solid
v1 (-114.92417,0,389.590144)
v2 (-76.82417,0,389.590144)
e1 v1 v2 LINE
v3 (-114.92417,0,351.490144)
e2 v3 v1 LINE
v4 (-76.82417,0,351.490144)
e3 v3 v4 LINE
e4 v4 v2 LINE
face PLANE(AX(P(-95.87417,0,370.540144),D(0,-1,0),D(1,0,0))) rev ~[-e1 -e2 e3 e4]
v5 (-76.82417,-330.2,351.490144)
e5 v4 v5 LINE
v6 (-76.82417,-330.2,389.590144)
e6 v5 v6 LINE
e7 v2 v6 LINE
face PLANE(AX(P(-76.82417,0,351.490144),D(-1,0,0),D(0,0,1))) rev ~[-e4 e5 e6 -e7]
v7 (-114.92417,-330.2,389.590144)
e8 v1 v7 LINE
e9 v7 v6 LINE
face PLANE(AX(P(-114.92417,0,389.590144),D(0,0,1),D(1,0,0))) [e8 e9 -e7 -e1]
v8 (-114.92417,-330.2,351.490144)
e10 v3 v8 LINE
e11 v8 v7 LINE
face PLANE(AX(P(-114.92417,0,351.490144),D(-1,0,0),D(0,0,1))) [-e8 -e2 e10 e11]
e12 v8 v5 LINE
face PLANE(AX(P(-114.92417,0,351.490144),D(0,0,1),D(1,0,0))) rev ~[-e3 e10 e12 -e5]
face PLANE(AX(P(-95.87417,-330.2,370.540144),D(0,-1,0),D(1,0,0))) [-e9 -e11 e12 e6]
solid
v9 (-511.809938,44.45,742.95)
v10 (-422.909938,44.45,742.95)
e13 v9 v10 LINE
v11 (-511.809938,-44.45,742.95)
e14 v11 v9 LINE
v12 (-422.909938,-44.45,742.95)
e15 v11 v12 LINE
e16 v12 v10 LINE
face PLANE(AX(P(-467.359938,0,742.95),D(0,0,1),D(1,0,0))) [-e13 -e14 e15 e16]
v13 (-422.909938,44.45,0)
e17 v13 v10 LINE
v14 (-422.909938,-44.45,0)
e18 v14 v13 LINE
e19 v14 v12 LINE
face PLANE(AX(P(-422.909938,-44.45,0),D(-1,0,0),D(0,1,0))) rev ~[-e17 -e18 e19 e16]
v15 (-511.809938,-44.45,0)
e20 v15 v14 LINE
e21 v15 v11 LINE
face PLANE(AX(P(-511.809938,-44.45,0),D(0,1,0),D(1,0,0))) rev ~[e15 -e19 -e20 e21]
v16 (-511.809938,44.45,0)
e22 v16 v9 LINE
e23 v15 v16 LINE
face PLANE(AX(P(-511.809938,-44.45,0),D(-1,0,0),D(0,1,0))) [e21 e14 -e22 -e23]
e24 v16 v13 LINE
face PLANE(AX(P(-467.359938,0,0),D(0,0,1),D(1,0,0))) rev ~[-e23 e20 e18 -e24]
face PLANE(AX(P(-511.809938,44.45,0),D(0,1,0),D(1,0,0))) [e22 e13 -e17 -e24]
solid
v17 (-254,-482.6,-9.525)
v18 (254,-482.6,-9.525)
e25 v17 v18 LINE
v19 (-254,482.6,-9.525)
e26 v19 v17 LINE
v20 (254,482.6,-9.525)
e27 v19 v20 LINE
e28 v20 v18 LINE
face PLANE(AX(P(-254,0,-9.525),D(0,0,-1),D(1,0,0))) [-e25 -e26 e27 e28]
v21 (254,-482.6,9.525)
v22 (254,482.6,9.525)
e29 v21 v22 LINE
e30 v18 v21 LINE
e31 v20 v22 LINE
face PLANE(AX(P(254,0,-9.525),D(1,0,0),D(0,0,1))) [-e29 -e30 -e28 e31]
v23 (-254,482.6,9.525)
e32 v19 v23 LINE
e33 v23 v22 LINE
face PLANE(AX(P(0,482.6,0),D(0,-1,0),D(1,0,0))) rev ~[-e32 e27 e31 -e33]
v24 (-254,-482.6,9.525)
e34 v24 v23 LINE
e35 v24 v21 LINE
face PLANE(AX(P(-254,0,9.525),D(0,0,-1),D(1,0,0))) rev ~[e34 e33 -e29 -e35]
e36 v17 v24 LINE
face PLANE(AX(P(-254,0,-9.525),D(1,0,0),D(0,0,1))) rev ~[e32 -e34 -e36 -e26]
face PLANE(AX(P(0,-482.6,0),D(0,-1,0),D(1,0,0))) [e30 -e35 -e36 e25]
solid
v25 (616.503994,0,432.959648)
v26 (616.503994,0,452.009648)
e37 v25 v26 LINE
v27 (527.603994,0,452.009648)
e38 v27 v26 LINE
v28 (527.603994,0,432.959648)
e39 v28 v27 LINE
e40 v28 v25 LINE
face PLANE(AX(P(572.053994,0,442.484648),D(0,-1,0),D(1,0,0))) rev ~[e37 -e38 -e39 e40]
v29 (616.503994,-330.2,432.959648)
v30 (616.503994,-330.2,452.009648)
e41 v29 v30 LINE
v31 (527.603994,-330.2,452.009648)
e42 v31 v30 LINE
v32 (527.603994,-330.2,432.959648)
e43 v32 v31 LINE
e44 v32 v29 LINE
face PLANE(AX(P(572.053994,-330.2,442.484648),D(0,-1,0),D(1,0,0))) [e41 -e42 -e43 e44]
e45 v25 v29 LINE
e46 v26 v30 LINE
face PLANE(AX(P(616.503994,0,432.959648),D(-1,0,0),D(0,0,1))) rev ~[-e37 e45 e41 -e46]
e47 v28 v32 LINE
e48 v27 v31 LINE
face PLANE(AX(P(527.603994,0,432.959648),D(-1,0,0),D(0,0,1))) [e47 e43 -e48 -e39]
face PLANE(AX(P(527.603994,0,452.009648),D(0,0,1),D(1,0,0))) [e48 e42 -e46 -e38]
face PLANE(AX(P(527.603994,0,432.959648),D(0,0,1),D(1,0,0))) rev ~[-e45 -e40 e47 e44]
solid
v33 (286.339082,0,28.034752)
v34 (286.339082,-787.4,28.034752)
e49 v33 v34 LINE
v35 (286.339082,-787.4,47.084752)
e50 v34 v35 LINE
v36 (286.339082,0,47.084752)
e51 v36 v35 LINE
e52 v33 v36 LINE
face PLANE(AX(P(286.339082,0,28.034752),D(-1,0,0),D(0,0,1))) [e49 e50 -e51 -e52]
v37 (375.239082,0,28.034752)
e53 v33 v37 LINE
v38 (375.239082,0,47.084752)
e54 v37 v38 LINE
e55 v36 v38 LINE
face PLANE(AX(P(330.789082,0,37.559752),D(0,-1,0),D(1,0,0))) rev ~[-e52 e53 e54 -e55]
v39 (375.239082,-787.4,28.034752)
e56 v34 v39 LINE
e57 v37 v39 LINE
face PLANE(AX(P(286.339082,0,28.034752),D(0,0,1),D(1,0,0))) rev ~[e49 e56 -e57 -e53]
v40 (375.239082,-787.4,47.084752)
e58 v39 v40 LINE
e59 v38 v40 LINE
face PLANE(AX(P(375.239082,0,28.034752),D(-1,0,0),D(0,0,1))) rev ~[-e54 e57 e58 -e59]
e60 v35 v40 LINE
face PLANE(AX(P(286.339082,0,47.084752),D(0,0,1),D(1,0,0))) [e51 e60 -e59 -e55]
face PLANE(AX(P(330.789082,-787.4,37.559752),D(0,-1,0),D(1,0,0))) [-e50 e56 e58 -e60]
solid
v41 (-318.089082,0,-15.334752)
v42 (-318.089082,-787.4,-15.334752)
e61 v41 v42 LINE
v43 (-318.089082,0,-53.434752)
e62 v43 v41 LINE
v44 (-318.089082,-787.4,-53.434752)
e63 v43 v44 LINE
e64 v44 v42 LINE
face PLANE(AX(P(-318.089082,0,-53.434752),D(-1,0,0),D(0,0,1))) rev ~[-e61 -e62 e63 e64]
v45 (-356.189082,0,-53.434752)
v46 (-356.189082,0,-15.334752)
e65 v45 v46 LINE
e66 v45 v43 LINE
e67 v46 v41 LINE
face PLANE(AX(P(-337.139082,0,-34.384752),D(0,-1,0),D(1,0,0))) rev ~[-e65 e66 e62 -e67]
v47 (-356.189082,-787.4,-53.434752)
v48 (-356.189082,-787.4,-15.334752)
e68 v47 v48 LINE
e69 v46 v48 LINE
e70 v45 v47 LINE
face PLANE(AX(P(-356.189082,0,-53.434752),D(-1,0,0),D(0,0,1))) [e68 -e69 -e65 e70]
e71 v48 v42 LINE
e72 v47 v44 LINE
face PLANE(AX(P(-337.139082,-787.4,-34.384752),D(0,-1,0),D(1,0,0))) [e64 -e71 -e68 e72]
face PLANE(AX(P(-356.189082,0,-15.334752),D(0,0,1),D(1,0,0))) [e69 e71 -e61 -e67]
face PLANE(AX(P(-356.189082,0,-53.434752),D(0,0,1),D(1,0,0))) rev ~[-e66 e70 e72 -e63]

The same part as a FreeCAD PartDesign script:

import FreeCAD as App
import Part
import Sketcher

V = App.Vector
Q = App.Units.Quantity

doc = App.newDocument("Part")
body = doc.addObject("PartDesign::Body", "Body")

# Sketch on XZ plane
sketch1 = body.newObject("Sketcher::SketchObject", "Sketch")
sketch1.AttachmentSupport = (doc.getObject("XZ_Plane"), [""])
sketch1.MapMode = "FlatFace"
sketch1.addGeometry(Part.LineSegment(V(-254, 9.525, 0), V(-254, -9.525, 0)), False)
sketch1.addGeometry(Part.LineSegment(V(-254, -9.525, 0), V(254, -9.525, 0)), False)
sketch1.addGeometry(Part.LineSegment(V(254, -9.525, 0), V(254, 9.525, 0)), False)
sketch1.addGeometry(Part.LineSegment(V(254, 9.525, 0), V(-254, 9.525, 0)), False)
sketch1.addConstraint(Sketcher.Constraint("Coincident", 0, 2, 1, 1))
sketch1.addConstraint(Sketcher.Constraint("Coincident", 1, 2, 2, 1))
sketch1.addConstraint(Sketcher.Constraint("Coincident", 2, 2, 3, 1))
sketch1.addConstraint(Sketcher.Constraint("Coincident", 3, 2, 0, 1))
sketch1.addConstraint(Sketcher.Constraint("Vertical", 0))
sketch1.addConstraint(Sketcher.Constraint("Horizontal", 1))
sketch1.addConstraint(Sketcher.Constraint("Vertical", 2))
sketch1.addConstraint(Sketcher.Constraint("Horizontal", 3))
sketch1.addConstraint(Sketcher.Constraint("Symmetric", 0, 2, 2, 2, -1, 1))
sketch1.addConstraint(Sketcher.Constraint("DistanceX", 1, 1, 1, 2, Q("20 in")))
sketch1.addConstraint(Sketcher.Constraint("DistanceY", 0, 2, 0, 1, Q("0.75 in")))
pad1 = body.newObject("PartDesign::Pad", "Pad")
pad1.Profile = sketch1
pad1.Type = "TwoLengths"
pad1.Length = Q("19 in")
pad1.Length2 = Q("19 in")
body2 = doc.addObject("PartDesign::Body", "Body001")

# Sketch on XY plane
sketch2 = body2.newObject("Sketcher::SketchObject", "Sketch001")
sketch2.AttachmentSupport = (doc.getObject("XY_Plane001"), [""])
sketch2.MapMode = "FlatFace"
sketch2.addGeometry(Part.LineSegment(V(-511.809938, 44.45, 0), V(-511.809938, -44.45, 0)), False)
sketch2.addGeometry(Part.LineSegment(V(-511.809938, -44.45, 0), V(-422.909938, -44.45, 0)), False)
sketch2.addGeometry(Part.LineSegment(V(-422.909938, -44.45, 0), V(-422.909938, 44.45, 0)), False)
sketch2.addGeometry(Part.LineSegment(V(-422.909938, 44.45, 0), V(-511.809938, 44.45, 0)), False)
sketch2.addConstraint(Sketcher.Constraint("Coincident", 0, 2, 1, 1))
sketch2.addConstraint(Sketcher.Constraint("Coincident", 1, 2, 2, 1))
sketch2.addConstraint(Sketcher.Constraint("Coincident", 2, 2, 3, 1))
sketch2.addConstraint(Sketcher.Constraint("Coincident", 3, 2, 0, 1))
sketch2.addConstraint(Sketcher.Constraint("Vertical", 0))
sketch2.addConstraint(Sketcher.Constraint("Horizontal", 1))
sketch2.addConstraint(Sketcher.Constraint("Vertical", 2))
sketch2.addConstraint(Sketcher.Constraint("Horizontal", 3))
sketch2.addConstraint(Sketcher.Constraint("Equal", 3, 0))
sketch2.addConstraint(Sketcher.Constraint("DistanceX", 1, 1, 1, 2, Q("3.5 in")))
sketch2.addConstraint(Sketcher.Constraint("DistanceY", 0, 2, -1, 1, Q("1.75 in")))
sketch2.addConstraint(Sketcher.Constraint("DistanceX", 0, 2, -1, 1, 511.809938))
pad2 = body2.newObject("PartDesign::Pad", "Pad001")
pad2.Profile = sketch2
pad2.Length = Q("29.25 in")
body3 = doc.addObject("PartDesign::Body", "Body002")
body3.AllowCompound = True

# Sketch on XZ plane
sketch3 = body3.newObject("Sketcher::SketchObject", "Sketch002")
sketch3.AttachmentSupport = (doc.getObject("XZ_Plane002"), [""])
sketch3.MapMode = "FlatFace"
sketch3.addGeometry(Part.LineSegment(V(527.603994, 452.009648, 0), V(527.603994, 432.959648, 0)), False)
sketch3.addGeometry(Part.LineSegment(V(527.603994, 432.959648, 0), V(616.503994, 432.959648, 0)), False)
sketch3.addGeometry(Part.LineSegment(V(616.503994, 432.959648, 0), V(616.503994, 452.009648, 0)), False)
sketch3.addGeometry(Part.LineSegment(V(616.503994, 452.009648, 0), V(527.603994, 452.009648, 0)), False)
sketch3.addGeometry(Part.LineSegment(V(-114.92417, 389.590144, 0), V(-114.92417, 351.490144, 0)), False)
sketch3.addGeometry(Part.LineSegment(V(-114.92417, 351.490144, 0), V(-76.82417, 351.490144, 0)), False)
sketch3.addGeometry(Part.LineSegment(V(-76.82417, 351.490144, 0), V(-76.82417, 389.590144, 0)), False)
sketch3.addGeometry(Part.LineSegment(V(-76.82417, 389.590144, 0), V(-114.92417, 389.590144, 0)), False)
sketch3.addConstraint(Sketcher.Constraint("Coincident", 0, 2, 1, 1))
sketch3.addConstraint(Sketcher.Constraint("Coincident", 1, 2, 2, 1))
sketch3.addConstraint(Sketcher.Constraint("Coincident", 2, 2, 3, 1))
sketch3.addConstraint(Sketcher.Constraint("Coincident", 3, 2, 0, 1))
sketch3.addConstraint(Sketcher.Constraint("Coincident", 4, 2, 5, 1))
sketch3.addConstraint(Sketcher.Constraint("Coincident", 5, 2, 6, 1))
sketch3.addConstraint(Sketcher.Constraint("Coincident", 6, 2, 7, 1))
sketch3.addConstraint(Sketcher.Constraint("Coincident", 7, 2, 4, 1))
sketch3.addConstraint(Sketcher.Constraint("Vertical", 0))
sketch3.addConstraint(Sketcher.Constraint("Horizontal", 1))
sketch3.addConstraint(Sketcher.Constraint("Vertical", 2))
sketch3.addConstraint(Sketcher.Constraint("Horizontal", 3))
sketch3.addConstraint(Sketcher.Constraint("Vertical", 4))
sketch3.addConstraint(Sketcher.Constraint("Horizontal", 5))
sketch3.addConstraint(Sketcher.Constraint("Vertical", 6))
sketch3.addConstraint(Sketcher.Constraint("Horizontal", 7))
sketch3.addConstraint(Sketcher.Constraint("Equal", 7, 4))
sketch3.addConstraint(Sketcher.Constraint("DistanceX", 1, 1, 1, 2, Q("3.5 in")))
sketch3.addConstraint(Sketcher.Constraint("DistanceX", 5, 1, 5, 2, Q("1.5 in")))
sketch3.addConstraint(Sketcher.Constraint("DistanceY", 0, 2, 0, 1, Q("0.75 in")))
sketch3.addConstraint(Sketcher.Constraint("DistanceY", -1, 1, 0, 2, 432.959648))
sketch3.addConstraint(Sketcher.Constraint("DistanceX", 4, 2, -1, 1, 114.92417))
sketch3.addConstraint(Sketcher.Constraint("DistanceX", -1, 1, 0, 2, 527.603994))
sketch3.addConstraint(Sketcher.Constraint("DistanceY", -1, 1, 4, 2, 351.490144))
pad3 = body3.newObject("PartDesign::Pad", "Pad002")
pad3.Profile = sketch3
pad3.Length = Q("13 in")
body4 = doc.addObject("PartDesign::Body", "Body003")
body4.AllowCompound = True

# Sketch on XZ plane
sketch4 = body4.newObject("Sketcher::SketchObject", "Sketch003")
sketch4.AttachmentSupport = (doc.getObject("XZ_Plane003"), [""])
sketch4.MapMode = "FlatFace"
sketch4.addGeometry(Part.LineSegment(V(-356.189082, -15.334752, 0), V(-356.189082, -53.434752, 0)), False)
sketch4.addGeometry(Part.LineSegment(V(-356.189082, -53.434752, 0), V(-318.089082, -53.434752, 0)), False)
sketch4.addGeometry(Part.LineSegment(V(-318.089082, -53.434752, 0), V(-318.089082, -15.334752, 0)), False)
sketch4.addGeometry(Part.LineSegment(V(-318.089082, -15.334752, 0), V(-356.189082, -15.334752, 0)), False)
sketch4.addGeometry(Part.LineSegment(V(286.339082, 47.084752, 0), V(286.339082, 28.034752, 0)), False)
sketch4.addGeometry(Part.LineSegment(V(286.339082, 28.034752, 0), V(375.239082, 28.034752, 0)), False)
sketch4.addGeometry(Part.LineSegment(V(375.239082, 28.034752, 0), V(375.239082, 47.084752, 0)), False)
sketch4.addGeometry(Part.LineSegment(V(375.239082, 47.084752, 0), V(286.339082, 47.084752, 0)), False)
sketch4.addConstraint(Sketcher.Constraint("Coincident", 0, 2, 1, 1))
sketch4.addConstraint(Sketcher.Constraint("Coincident", 1, 2, 2, 1))
sketch4.addConstraint(Sketcher.Constraint("Coincident", 2, 2, 3, 1))
sketch4.addConstraint(Sketcher.Constraint("Coincident", 3, 2, 0, 1))
sketch4.addConstraint(Sketcher.Constraint("Coincident", 4, 2, 5, 1))
sketch4.addConstraint(Sketcher.Constraint("Coincident", 5, 2, 6, 1))
sketch4.addConstraint(Sketcher.Constraint("Coincident", 6, 2, 7, 1))
sketch4.addConstraint(Sketcher.Constraint("Coincident", 7, 2, 4, 1))
sketch4.addConstraint(Sketcher.Constraint("Vertical", 0))
sketch4.addConstraint(Sketcher.Constraint("Horizontal", 1))
sketch4.addConstraint(Sketcher.Constraint("Vertical", 2))
sketch4.addConstraint(Sketcher.Constraint("Horizontal", 3))
sketch4.addConstraint(Sketcher.Constraint("Vertical", 4))
sketch4.addConstraint(Sketcher.Constraint("Horizontal", 5))
sketch4.addConstraint(Sketcher.Constraint("Vertical", 6))
sketch4.addConstraint(Sketcher.Constraint("Horizontal", 7))
sketch4.addConstraint(Sketcher.Constraint("Equal", 3, 0))
sketch4.addConstraint(Sketcher.Constraint("DistanceX", 1, 1, 1, 2, Q("1.5 in")))
sketch4.addConstraint(Sketcher.Constraint("DistanceX", 5, 1, 5, 2, Q("3.5 in")))
sketch4.addConstraint(Sketcher.Constraint("DistanceY", 4, 2, 4, 1, Q("0.75 in")))
sketch4.addConstraint(Sketcher.Constraint("DistanceX", 0, 2, -1, 1, 356.189082))
sketch4.addConstraint(Sketcher.Constraint("DistanceX", -1, 1, 4, 2, 286.339082))
sketch4.addConstraint(Sketcher.Constraint("DistanceY", 0, 2, -1, 1, 53.434752))
sketch4.addConstraint(Sketcher.Constraint("DistanceY", -1, 1, 4, 2, 28.034752))
pad4 = body4.newObject("PartDesign::Pad", "Pad003")
pad4.Profile = sketch4
pad4.Length = Q("31 in")

doc.recompute()
